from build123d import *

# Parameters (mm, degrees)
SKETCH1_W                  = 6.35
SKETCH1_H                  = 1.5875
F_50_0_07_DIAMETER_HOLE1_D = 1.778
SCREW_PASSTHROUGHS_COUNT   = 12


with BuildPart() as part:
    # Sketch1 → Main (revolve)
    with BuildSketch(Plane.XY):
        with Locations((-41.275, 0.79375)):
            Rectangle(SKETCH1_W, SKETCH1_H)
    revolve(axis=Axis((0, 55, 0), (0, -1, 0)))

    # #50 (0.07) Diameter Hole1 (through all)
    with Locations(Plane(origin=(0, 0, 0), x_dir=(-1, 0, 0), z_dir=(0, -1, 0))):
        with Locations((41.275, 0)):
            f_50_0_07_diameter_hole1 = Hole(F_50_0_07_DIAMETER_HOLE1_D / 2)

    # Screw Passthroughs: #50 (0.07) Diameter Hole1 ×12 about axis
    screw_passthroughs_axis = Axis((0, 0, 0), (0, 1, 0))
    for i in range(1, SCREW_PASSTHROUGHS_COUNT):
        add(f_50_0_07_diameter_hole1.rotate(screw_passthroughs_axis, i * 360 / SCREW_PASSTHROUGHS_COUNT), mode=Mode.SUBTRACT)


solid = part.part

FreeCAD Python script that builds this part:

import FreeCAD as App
import Part
import Sketcher
from FreeCAD import Vector
Q = App.Units.Quantity

doc = App.newDocument("Part")
body = doc.addObject("PartDesign::Body", "Body")

# Sketch on XY plane
sketch1 = body.newObject("Sketcher::SketchObject", "Sketch")
sketch1.AttachmentSupport = (doc.getObject("XY_Plane"), [""])
sketch1.MapMode = "FlatFace"
sketch1.addGeometry(Part.LineSegment(Vector(-44.45, 1.5875, 0), Vector(-44.45, 0, 0)), False)
sketch1.addGeometry(Part.LineSegment(Vector(-44.45, 0, 0), Vector(-38.1, 0, 0)), False)
sketch1.addGeometry(Part.LineSegment(Vector(-38.1, 0, 0), Vector(-38.1, 1.5875, 0)), False)
sketch1.addGeometry(Part.LineSegment(Vector(-38.1, 1.5875, 0), Vector(-44.45, 1.5875, 0)), False)
sketch1.addConstraint(Sketcher.Constraint("Coincident", 0, 2, 1, 1))
sketch1.addConstraint(Sketcher.Constraint("Coincident", 1, 2, 2, 1))
sketch1.addConstraint(Sketcher.Constraint("Coincident", 2, 2, 3, 1))
sketch1.addConstraint(Sketcher.Constraint("Coincident", 3, 2, 0, 1))
sketch1.addConstraint(Sketcher.Constraint("Vertical", 0))
sketch1.addConstraint(Sketcher.Constraint("Horizontal", 1))
sketch1.addConstraint(Sketcher.Constraint("Vertical", 2))
sketch1.addConstraint(Sketcher.Constraint("Horizontal", 3))
sketch1.addConstraint(Sketcher.Constraint("PointOnObject", 0, 2, -1))
sketch1.addConstraint(Sketcher.Constraint("DistanceX", 1, 1, 1, 2, Q("0.25 in")))
sketch1.addConstraint(Sketcher.Constraint("DistanceX", 1, 2, -1, 1, Q("1.5 in")))
sketch1.addConstraint(Sketcher.Constraint("DistanceY", 0, 2, 0, 1, Q("0.0625 in")))
revolution = body.newObject("PartDesign::Revolution", "Revolution")
revolution.Profile = sketch1
revolution.ReferenceAxis = (sketch1, ["V_Axis"])
revolution.Angle = 360

# Sketch on XZ plane
sketch2 = body.newObject("Sketcher::SketchObject", "Sketch001")
sketch2.AttachmentSupport = (doc.getObject("XZ_Plane"), [""])
sketch2.MapMode = "FlatFace"
sketch2.addGeometry(Part.Circle(Vector(-41.275, 0, 0), Vector(0, 0, 1), 0.889), False)
sketch2.addConstraint(Sketcher.Constraint("PointOnObject", 0, 3, -1))
sketch2.addConstraint(Sketcher.Constraint("Diameter", 0, Q("0.07 in")))
sketch2.addConstraint(Sketcher.Constraint("DistanceX", 0, 3, -1, 1, Q("1.625 in")))
doc.recompute()
hole = body.newObject("PartDesign::Hole", "Hole")
hole.Profile = sketch2
hole.ThreadType = "None"
hole.Diameter = Q("0.07 in")
hole.DepthType = "ThroughAll"
doc.recompute()

polarpattern = body.newObject("PartDesign::PolarPattern", "PolarPattern")
polarpattern.Originals = [hole]
polarpattern.Axis = (doc.getObject("Y_Axis"), [""])
polarpattern.Angle = 360
polarpattern.Occurrences = 12
body.Tip = polarpattern

doc.recompute()
